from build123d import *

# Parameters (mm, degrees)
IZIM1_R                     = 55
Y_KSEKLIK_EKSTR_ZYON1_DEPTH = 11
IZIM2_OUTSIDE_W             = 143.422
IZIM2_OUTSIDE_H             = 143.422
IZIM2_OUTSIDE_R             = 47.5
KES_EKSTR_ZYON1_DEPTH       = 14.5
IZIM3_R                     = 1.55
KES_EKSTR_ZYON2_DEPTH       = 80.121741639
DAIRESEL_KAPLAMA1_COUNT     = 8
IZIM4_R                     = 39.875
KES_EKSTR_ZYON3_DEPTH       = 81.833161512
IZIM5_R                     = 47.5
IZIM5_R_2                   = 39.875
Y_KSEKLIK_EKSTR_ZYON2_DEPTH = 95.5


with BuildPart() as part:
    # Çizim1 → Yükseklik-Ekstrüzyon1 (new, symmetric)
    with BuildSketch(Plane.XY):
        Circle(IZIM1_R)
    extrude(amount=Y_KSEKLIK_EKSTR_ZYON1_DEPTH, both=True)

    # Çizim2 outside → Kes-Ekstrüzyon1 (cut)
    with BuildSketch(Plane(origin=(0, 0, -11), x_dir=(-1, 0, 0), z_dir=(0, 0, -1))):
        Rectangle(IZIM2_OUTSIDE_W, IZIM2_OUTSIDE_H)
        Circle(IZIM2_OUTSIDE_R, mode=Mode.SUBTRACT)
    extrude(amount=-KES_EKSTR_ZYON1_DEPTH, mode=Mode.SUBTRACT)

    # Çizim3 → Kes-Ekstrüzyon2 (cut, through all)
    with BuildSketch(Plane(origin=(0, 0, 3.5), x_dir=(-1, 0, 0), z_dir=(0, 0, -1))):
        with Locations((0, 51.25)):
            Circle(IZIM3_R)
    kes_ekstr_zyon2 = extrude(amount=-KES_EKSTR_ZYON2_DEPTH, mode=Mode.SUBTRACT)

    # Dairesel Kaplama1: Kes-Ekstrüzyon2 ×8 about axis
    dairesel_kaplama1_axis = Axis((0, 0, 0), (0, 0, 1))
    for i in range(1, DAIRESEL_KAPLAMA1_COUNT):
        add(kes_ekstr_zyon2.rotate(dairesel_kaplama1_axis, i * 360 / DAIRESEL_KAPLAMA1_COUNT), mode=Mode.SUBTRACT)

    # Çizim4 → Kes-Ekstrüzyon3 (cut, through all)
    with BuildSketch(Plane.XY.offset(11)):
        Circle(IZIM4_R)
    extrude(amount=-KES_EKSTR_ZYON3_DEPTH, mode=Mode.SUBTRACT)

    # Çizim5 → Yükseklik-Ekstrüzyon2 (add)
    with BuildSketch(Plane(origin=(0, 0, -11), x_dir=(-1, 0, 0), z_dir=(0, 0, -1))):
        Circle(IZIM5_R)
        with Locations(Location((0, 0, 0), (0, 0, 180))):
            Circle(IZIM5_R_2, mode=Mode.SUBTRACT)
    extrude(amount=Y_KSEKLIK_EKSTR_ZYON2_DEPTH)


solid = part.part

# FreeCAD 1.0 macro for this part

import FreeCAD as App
import Part
import Sketcher
from FreeCAD import Vector
Q = App.Units.Quantity

doc = App.newDocument("Part")
params = doc.addObject("Spreadsheet::Sheet", "Params")
for row, (alias, value) in enumerate([
    ("sketch1_diameter", "110 mm"),
    ("pad1_length", "22 mm"),
    ("sketch2_diameter", "95 mm"),
    ("pocket1_length", "14.5 mm"),
    ("sketch3_diameter", "3.1 mm"),
    ("sketch4_diameter", "79.75 mm"),
    ("sketch5_diameter", "95 mm"),
    ("sketch5_diameter2", "79.75 mm"),
    ("pad2_length", "95.5 mm"),
], start=1):
    params.set(f"A{row}", alias)
    params.set(f"B{row}", "=" + value)
    params.setAlias(f"B{row}", alias)

body = doc.addObject("PartDesign::Body", "Body")

# Sketch on XY plane
sketch1 = body.newObject("Sketcher::SketchObject", "Sketch")
sketch1.AttachmentSupport = (doc.getObject("XY_Plane"), [""])
sketch1.MapMode = "FlatFace"
sketch1.addGeometry(Part.Circle(Vector(0, 0, 0), Vector(0, 0, 1), 55), False)
sketch1.addConstraint([
    Sketcher.Constraint("Coincident", 0, 3, -1, 1),
    Sketcher.Constraint("Diameter", 0, Q("110 mm")),
])
sketch1.setExpression("Constraints[1]", "Params.sketch1_diameter")
pad1 = body.newObject("PartDesign::Pad", "Pad")
pad1.Profile = sketch1
pad1.setExpression("Length", "Params.pad1_length")
pad1.Midplane = True

# Sketch on XY plane
sketch2 = body.newObject("Sketcher::SketchObject", "Sketch001")
sketch2.AttachmentSupport = (doc.getObject("XY_Plane"), [""])
sketch2.MapMode = "FlatFace"
sketch2.AttachmentOffset = App.Placement(Vector(0, 0, -11), App.Rotation())
sketch2.addGeometry([
    Part.LineSegment(Vector(72, 72, 0), Vector(72, -72, 0)),  # 0
    Part.LineSegment(Vector(72, -72, 0), Vector(-72, -72, 0)),  # 1
    Part.LineSegment(Vector(-72, -72, 0), Vector(-72, 72, 0)),  # 2
    Part.LineSegment(Vector(-72, 72, 0), Vector(72, 72, 0)),  # 3
    Part.Circle(Vector(0, 0, 0), Vector(0, 0, 1), 48),  # 4
], False)
sketch2.addConstraint([
    Sketcher.Constraint("Coincident", 0, 2, 1, 1),
    Sketcher.Constraint("Coincident", 1, 2, 2, 1),
    Sketcher.Constraint("Coincident", 2, 2, 3, 1),
    Sketcher.Constraint("Coincident", 3, 2, 0, 1),
    Sketcher.Constraint("Vertical", 0),
    Sketcher.Constraint("Horizontal", 1),
    Sketcher.Constraint("Vertical", 2),
    Sketcher.Constraint("Horizontal", 3),
    Sketcher.Constraint("Coincident", 4, 3, -1, 1),
    Sketcher.Constraint("Symmetric", 0, 2, 2, 2, -1, 1),
    Sketcher.Constraint("Equal", 3, 0),
    Sketcher.Constraint("Diameter", 4, Q("95 mm")),
    Sketcher.Constraint("DistanceX", 1, 2, 1, 1, Q("143.422 mm")),
])
sketch2.setExpression("Constraints[11]", "Params.sketch2_diameter")
pocket1 = body.newObject("PartDesign::Pocket", "Pocket")
pocket1.Profile = sketch2
pocket1.setExpression("Length", "Params.pocket1_length")
pocket1.Reversed = True

# Sketch on XY plane
sketch3 = body.newObject("Sketcher::SketchObject", "Sketch002")
sketch3.AttachmentSupport = (doc.getObject("XY_Plane"), [""])
sketch3.MapMode = "FlatFace"
sketch3.AttachmentOffset = App.Placement(Vector(0, 0, 3.5), App.Rotation())
sketch3.addGeometry(Part.Circle(Vector(0, 51.2, 0), Vector(0, 0, 1), 1.6), False)
sketch3.addConstraint([
    Sketcher.Constraint("PointOnObject", 0, 3, -2),
    Sketcher.Constraint("Diameter", 0, Q("3.1 mm")),
    Sketcher.Constraint("DistanceY", -1, 1, 0, 3, Q("51.25 mm")),
])
sketch3.setExpression("Constraints[1]", "Params.sketch3_diameter")
pocket2 = body.newObject("PartDesign::Pocket", "Pocket001")
pocket2.Profile = sketch3
pocket2.Type = "ThroughAll"
pocket2.Reversed = True
doc.recompute()

polarpattern = body.newObject("PartDesign::PolarPattern", "PolarPattern")
polarpattern.Originals = [pocket2]
polarpattern.Axis = (doc.getObject("Z_Axis"), [""])
polarpattern.Angle = 360
polarpattern.Occurrences = 8
body.Tip = polarpattern

# Sketch on XY plane
sketch4 = body.newObject("Sketcher::SketchObject", "Sketch003")
sketch4.AttachmentSupport = (doc.getObject("XY_Plane"), [""])
sketch4.MapMode = "FlatFace"
sketch4.AttachmentOffset = App.Placement(Vector(0, 0, 11), App.Rotation())
sketch4.addGeometry(Part.Circle(Vector(0, 0, 0), Vector(0, 0, 1), 40), False)
sketch4.addConstraint([
    Sketcher.Constraint("Coincident", 0, 3, -1, 1),
    Sketcher.Constraint("Diameter", 0, Q("79.75 mm")),
])
sketch4.setExpression("Constraints[1]", "Params.sketch4_diameter")
pocket3 = body.newObject("PartDesign::Pocket", "Pocket002")
pocket3.Profile = sketch4
pocket3.Type = "ThroughAll"

# Sketch on XY plane
sketch5 = body.newObject("Sketcher::SketchObject", "Sketch004")
sketch5.AttachmentSupport = (doc.getObject("XY_Plane"), [""])
sketch5.MapMode = "FlatFace"
sketch5.AttachmentOffset = App.Placement(Vector(0, 0, -11), App.Rotation())
sketch5.addGeometry([
    Part.Circle(Vector(0, 0, 0), Vector(0, 0, 1), 48),
    Part.Circle(Vector(0, 0, 0), Vector(0, 0, 1), 40),
], False)
sketch5.addConstraint([
    Sketcher.Constraint("Coincident", 0, 3, -1, 1),
    Sketcher.Constraint("Coincident", 1, 3, -1, 1),
    Sketcher.Constraint("Diameter", 0, Q("95 mm")),
    Sketcher.Constraint("Diameter", 1, Q("79.75 mm")),
])
sketch5.setExpression("Constraints[2]", "Params.sketch5_diameter")
sketch5.setExpression("Constraints[3]", "Params.sketch5_diameter2")
pad2 = body.newObject("PartDesign::Pad", "Pad001")
pad2.Profile = sketch5
pad2.setExpression("Length", "Params.pad2_length")
pad2.Reversed = True

doc.recompute()
